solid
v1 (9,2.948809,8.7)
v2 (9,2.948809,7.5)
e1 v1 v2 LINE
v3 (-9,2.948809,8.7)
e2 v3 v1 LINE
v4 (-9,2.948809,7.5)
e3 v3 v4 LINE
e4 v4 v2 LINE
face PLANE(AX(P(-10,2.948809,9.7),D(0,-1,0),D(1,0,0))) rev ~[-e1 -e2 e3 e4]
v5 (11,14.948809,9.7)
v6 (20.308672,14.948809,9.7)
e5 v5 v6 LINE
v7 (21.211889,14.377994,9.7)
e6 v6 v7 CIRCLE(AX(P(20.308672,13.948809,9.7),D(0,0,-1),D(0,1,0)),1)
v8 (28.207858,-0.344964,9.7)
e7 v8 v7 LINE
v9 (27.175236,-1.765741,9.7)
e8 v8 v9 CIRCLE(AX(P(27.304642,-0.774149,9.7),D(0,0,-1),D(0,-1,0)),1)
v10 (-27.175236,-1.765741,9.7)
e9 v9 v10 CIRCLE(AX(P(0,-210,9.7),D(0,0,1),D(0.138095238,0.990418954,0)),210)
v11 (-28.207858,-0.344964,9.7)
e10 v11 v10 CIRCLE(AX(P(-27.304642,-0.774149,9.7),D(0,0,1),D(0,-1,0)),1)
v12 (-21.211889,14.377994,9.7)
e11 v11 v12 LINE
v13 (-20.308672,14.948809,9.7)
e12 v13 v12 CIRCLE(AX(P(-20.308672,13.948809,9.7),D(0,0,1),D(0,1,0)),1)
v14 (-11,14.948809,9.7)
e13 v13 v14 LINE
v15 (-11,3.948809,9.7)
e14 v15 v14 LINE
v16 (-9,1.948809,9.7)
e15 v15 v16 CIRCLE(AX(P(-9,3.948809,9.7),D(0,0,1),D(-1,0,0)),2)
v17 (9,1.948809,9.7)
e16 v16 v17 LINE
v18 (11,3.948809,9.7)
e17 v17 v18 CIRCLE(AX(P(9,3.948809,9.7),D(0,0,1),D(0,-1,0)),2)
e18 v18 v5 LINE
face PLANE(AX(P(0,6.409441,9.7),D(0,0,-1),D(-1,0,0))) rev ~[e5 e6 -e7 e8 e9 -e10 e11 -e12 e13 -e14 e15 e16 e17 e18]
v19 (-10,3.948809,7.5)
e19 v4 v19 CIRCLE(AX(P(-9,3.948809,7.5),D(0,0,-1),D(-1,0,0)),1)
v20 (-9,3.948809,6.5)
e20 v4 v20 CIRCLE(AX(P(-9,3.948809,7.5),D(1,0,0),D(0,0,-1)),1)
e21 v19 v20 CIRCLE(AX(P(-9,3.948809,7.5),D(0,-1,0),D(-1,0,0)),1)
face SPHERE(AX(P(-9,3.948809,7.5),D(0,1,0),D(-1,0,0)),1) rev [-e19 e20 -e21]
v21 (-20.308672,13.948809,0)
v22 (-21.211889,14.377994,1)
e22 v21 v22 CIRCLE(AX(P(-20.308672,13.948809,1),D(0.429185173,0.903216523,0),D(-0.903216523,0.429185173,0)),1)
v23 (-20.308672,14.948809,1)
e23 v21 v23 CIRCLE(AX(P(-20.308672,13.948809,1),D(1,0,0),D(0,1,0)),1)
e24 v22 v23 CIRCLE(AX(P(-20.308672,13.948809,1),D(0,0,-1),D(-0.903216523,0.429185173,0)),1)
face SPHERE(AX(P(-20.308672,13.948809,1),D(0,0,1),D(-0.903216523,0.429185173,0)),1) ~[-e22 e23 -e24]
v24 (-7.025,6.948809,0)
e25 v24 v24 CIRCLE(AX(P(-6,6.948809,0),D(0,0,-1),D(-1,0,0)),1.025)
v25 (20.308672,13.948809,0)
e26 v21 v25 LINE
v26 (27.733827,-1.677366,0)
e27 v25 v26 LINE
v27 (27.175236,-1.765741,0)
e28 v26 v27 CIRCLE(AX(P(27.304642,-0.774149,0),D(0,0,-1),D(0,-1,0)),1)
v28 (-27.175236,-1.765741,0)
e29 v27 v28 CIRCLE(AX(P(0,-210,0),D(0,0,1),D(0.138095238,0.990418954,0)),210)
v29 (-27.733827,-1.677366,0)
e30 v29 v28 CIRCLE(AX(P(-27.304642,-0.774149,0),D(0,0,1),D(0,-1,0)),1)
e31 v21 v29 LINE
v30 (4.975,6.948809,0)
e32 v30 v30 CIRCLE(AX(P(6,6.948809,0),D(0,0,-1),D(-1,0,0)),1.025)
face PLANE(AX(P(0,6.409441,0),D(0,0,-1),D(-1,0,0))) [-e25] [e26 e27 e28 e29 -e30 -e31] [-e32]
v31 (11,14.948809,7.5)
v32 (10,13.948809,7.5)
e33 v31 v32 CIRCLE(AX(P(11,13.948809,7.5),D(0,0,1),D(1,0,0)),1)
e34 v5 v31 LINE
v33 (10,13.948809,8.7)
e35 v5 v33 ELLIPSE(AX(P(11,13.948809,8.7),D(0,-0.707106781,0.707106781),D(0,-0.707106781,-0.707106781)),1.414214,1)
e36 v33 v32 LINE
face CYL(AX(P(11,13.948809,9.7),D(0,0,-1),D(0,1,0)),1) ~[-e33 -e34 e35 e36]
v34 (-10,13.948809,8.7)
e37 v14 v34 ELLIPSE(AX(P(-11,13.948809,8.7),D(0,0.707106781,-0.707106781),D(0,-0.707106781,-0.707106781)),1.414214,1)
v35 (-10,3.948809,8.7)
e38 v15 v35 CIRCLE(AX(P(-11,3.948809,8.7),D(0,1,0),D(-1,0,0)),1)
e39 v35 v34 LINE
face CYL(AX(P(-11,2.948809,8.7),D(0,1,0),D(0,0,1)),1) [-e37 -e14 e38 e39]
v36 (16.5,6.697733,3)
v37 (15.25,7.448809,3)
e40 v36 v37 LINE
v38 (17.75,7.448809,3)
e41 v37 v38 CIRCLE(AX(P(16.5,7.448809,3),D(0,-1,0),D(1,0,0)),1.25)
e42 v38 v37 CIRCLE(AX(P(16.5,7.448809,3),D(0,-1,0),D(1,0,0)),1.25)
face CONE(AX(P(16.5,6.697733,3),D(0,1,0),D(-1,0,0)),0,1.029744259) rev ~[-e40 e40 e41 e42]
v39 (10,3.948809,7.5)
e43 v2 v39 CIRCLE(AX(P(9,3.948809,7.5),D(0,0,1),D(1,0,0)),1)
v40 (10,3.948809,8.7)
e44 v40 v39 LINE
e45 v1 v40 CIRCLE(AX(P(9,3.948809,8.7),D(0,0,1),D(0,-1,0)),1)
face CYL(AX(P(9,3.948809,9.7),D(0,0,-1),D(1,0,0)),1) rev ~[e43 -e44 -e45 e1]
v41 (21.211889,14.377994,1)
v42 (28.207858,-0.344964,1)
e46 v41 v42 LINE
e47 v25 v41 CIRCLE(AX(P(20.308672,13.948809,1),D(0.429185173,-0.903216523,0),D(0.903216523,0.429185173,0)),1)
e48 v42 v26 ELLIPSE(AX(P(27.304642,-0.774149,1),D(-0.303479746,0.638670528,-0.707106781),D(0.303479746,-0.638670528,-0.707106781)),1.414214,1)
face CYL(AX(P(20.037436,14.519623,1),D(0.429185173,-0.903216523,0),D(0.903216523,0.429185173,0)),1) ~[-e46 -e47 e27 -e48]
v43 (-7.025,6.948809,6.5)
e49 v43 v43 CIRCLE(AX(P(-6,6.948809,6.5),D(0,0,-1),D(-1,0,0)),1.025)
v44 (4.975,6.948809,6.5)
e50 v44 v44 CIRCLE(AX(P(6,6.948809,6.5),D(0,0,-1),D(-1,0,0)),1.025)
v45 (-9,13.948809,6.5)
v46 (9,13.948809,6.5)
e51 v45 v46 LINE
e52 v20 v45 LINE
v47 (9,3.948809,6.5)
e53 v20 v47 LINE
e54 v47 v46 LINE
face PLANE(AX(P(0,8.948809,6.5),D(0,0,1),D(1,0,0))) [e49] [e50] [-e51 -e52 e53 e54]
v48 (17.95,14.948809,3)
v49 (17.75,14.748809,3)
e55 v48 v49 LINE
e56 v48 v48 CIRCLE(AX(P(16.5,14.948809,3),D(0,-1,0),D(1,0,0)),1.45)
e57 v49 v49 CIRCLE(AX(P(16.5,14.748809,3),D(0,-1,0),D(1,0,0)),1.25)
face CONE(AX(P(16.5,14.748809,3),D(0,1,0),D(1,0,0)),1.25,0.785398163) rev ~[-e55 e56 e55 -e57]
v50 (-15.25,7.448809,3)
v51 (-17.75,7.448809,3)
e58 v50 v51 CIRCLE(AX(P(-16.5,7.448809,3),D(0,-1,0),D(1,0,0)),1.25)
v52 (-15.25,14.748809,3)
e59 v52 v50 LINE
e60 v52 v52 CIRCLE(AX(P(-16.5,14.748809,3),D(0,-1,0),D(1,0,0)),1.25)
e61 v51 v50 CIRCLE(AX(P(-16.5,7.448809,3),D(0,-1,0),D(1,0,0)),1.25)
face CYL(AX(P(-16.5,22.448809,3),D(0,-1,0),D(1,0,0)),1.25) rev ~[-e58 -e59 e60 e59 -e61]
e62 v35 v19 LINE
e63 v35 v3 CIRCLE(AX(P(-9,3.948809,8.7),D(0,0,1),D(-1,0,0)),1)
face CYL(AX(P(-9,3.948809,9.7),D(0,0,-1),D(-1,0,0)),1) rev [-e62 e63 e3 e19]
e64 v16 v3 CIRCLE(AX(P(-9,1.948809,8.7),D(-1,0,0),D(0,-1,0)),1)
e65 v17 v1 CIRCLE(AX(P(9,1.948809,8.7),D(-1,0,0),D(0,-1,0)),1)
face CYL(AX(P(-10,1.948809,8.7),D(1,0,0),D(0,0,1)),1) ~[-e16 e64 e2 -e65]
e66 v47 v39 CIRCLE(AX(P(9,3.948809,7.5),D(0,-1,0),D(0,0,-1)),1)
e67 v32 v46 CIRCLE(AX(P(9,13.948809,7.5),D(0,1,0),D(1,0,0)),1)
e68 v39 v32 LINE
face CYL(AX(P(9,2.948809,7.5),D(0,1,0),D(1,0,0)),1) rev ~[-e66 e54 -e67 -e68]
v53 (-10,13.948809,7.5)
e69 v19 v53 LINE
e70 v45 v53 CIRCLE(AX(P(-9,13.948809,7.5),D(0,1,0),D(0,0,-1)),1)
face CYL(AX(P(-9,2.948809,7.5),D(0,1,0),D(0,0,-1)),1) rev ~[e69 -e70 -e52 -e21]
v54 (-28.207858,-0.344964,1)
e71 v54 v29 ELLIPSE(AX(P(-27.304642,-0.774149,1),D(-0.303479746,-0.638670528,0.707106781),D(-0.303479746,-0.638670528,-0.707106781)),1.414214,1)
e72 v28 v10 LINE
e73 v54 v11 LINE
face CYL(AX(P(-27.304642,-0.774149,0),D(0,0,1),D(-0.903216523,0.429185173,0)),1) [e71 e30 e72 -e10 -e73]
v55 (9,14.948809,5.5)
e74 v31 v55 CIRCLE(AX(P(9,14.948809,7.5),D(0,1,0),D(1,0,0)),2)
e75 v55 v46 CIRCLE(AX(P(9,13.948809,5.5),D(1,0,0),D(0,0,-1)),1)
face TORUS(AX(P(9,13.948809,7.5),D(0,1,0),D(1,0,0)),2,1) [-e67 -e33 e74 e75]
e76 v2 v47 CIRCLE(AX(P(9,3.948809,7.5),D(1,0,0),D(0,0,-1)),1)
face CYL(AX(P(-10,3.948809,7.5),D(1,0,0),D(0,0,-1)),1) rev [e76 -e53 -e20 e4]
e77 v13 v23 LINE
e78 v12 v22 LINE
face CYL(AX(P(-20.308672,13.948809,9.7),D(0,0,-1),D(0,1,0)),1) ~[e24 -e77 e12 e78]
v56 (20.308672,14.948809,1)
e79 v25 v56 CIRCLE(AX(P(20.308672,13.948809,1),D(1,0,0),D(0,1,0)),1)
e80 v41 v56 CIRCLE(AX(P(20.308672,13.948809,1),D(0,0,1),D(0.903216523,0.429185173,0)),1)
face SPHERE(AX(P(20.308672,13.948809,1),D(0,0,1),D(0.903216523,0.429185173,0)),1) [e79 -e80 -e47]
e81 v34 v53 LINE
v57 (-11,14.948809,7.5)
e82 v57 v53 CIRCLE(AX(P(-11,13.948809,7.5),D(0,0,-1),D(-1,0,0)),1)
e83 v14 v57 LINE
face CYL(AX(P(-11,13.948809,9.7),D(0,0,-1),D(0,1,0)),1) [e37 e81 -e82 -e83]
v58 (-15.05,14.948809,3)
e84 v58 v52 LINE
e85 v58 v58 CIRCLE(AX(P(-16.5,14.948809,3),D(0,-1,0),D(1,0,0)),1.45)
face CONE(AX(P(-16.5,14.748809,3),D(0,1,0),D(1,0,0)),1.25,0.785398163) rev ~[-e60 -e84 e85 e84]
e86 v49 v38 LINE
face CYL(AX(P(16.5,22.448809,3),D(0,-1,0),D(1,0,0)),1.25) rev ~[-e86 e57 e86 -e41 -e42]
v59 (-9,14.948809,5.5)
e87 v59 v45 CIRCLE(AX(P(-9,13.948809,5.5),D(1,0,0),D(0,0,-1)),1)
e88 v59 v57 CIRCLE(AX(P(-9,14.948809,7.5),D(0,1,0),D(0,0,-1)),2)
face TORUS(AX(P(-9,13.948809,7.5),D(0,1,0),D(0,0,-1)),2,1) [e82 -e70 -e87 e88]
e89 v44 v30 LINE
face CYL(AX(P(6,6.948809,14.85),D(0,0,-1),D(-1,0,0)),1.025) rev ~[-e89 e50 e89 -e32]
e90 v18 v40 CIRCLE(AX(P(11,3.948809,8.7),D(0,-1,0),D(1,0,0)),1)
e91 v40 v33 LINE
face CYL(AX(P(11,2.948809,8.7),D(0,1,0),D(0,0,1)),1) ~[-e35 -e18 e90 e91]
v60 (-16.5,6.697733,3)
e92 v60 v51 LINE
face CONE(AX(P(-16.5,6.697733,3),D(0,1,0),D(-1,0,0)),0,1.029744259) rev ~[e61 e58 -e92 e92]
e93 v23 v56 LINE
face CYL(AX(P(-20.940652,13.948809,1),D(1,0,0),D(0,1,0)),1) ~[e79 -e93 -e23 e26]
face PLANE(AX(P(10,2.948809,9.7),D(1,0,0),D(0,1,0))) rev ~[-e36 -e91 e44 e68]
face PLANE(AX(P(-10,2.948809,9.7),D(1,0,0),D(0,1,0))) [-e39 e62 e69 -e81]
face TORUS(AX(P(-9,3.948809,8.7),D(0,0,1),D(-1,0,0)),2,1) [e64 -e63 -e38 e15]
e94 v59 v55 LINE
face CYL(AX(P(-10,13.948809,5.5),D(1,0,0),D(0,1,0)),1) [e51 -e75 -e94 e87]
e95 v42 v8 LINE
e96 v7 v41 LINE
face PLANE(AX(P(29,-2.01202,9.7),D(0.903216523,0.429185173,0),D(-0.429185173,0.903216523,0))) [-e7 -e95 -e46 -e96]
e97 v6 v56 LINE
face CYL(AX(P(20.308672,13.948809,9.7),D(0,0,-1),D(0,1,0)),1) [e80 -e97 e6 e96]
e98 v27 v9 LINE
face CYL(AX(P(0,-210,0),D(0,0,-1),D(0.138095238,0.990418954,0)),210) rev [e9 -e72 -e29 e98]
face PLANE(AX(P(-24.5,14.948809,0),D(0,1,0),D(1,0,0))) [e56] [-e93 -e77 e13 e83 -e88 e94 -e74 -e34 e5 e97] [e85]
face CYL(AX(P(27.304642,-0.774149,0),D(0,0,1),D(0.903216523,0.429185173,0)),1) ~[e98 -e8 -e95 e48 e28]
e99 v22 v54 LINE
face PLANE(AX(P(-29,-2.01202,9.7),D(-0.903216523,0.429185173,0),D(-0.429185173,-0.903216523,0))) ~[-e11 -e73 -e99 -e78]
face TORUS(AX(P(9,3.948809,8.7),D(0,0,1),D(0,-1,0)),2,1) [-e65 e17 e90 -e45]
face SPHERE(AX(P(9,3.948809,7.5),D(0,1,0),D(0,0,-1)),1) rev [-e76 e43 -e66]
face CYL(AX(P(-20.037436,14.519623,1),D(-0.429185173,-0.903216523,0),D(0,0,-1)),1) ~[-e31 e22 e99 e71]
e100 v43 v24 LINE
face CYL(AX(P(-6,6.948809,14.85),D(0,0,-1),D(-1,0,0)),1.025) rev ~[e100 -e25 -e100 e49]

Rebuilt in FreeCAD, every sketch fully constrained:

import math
import FreeCAD as App
import Part
import Sketcher

V = App.Vector
Q = App.Units.Quantity


def edges_at(feature, points):
    """Names of the edges that pass closest to the given points."""
    edges = feature.Shape.Edges
    near = lambda p: min(range(len(edges)), key=lambda i: edges[i].distToShape(Part.Vertex(*p))[0])
    return sorted({f"Edge{near(p) + 1}" for p in points})


def add_polygon(sketch, points):
    """Adds a closed chain of lines whose ends are joined by coincident constraints."""
    first, n = sketch.GeometryCount, len(points)
    for a, b in zip(points, points[1:] + points[:1]):
        sketch.addGeometry(Part.LineSegment(App.Vector(*a, 0), App.Vector(*b, 0)), False)
    for i in range(n):
        sketch.addConstraint(Sketcher.Constraint("Coincident", first + i, 2, first + (i + 1) % n, 1))

doc = App.newDocument("Part")
body = doc.addObject("PartDesign::Body", "Body")

sketch1 = body.newObject("Sketcher::SketchObject", "Sketch")
sketch1.AttachmentSupport = (doc.getObject("XY_Plane"), [""])
sketch1.MapMode = "FlatFace"
sketch1.addGeometry([
    Part.LineSegment(V(29, -2, 0), V(24.5, 14.9, 0)),
    Part.LineSegment(V(24.5, 14.9, 0), V(-24.5, 14.9, 0)),
    Part.LineSegment(V(-24.5, 14.9, 0), V(-29, -2, 0)),
    Part.ArcOfCircle(Part.Circle(V(0, -210, 0), V(0, 0, 1), 210), math.radians(82.06), math.radians(97.94)),
    Part.Circle(V(6, 6.9, 0), V(0, 0, 1), 0.5),
    Part.Circle(V(-6, 6.9, 0), V(0, 0, 1), 0.5),
], False)
sketch1.addConstraint([
    Sketcher.Constraint("Coincident", 0, 2, 1, 1),
    Sketcher.Constraint("Coincident", 1, 2, 2, 1),
    Sketcher.Constraint("Coincident", 2, 2, 3, 2),
    Sketcher.Constraint("Coincident", 3, 1, 0, 1),
    Sketcher.Constraint("Horizontal", 1),
    Sketcher.Constraint("Equal", 4, 5),
    Sketcher.Constraint("Symmetric", 4, 3, 5, 3, -2),
    Sketcher.Constraint("Symmetric", 2, 2, 3, 1, -2),
    Sketcher.Constraint("Equal", 0, 2),
    Sketcher.Constraint("Diameter", 4, Q("1 mm")),
    Sketcher.Constraint("Radius", 3, Q("210 mm")),
    Sketcher.Constraint("DistanceX", 1, 2, 1, 1, Q("49 mm")),
    Sketcher.Constraint("DistanceY", 3, 3, -1, 1, Q("210 mm")),
    Sketcher.Constraint("DistanceX", -1, 1, 4, 3, Q("6 mm")),
    Sketcher.Constraint("DistanceX", 2, 2, -1, 1, Q("29 mm")),
    Sketcher.Constraint("DistanceY", 4, 3, 0, 2, Q("8 mm")),
    Sketcher.Constraint("Distance", 0, Q("17.547641 mm")),
])
pad1 = body.newObject("PartDesign::Pad", "Pad")
pad1.Profile = sketch1
pad1.Length = 9.7

sketch2 = body.newObject("Sketcher::SketchObject", "Sketch001")
sketch2.AttachmentSupport = (doc.getObject("XZ_Plane"), [""])
sketch2.MapMode = "FlatFace"
sketch2.AttachmentOffset = App.Placement(V(0, 0, -14.948809), App.Rotation())
sketch2.addGeometry([
    Part.Circle(V(16.5, 3, 0), V(0, 0, 1), 1.2),
    Part.Circle(V(-16.5, 3, 0), V(0, 0, 1), 1.2),
], False)
sketch2.addConstraint([
    Sketcher.Constraint("Equal", 0, 1),
    Sketcher.Constraint("Symmetric", 0, 3, 1, 3, -2),
    Sketcher.Constraint("Diameter", 0, Q("2.5 mm")),
    Sketcher.Constraint("DistanceY", -1, 1, 0, 3, Q("3 mm")),
    Sketcher.Constraint("DistanceX", 1, 3, 0, 3, Q("33 mm")),
])
doc.recompute()
hole = body.newObject("PartDesign::Hole", "Hole")
hole.Profile = sketch2
hole.ThreadType = "None"
hole.Diameter = 2.5
hole.DepthType = "Dimension"
hole.Depth = 7.5
hole.DrillPoint = "Angled"
hole.DrillPointAngle = 118
hole.Reversed = True

sketch3 = body.newObject("Sketcher::SketchObject", "Sketch002")
sketch3.AttachmentSupport = (doc.getObject("XY_Plane"), [""])
sketch3.MapMode = "FlatFace"
sketch3.AttachmentOffset = App.Placement(V(0, 0, 9.7), App.Rotation())
add_polygon(sketch3, [(20.9, 15), (29, -2), (24.5, 14.9)])
sketch3.addConstraint([
    Sketcher.Constraint("DistanceX", -1, 1, 0, 2, Q("29 mm")),
    Sketcher.Constraint("DistanceX", -1, 1, 1, 2, Q("24.5 mm")),
    Sketcher.Constraint("Distance", 0, Q("18.838401 mm")),
    Sketcher.Constraint("Distance", 1, Q("17.547641 mm")),
    Sketcher.Constraint("DistanceY", 0, 2, -1, 1, Q("2.01202 mm")),
    Sketcher.Constraint("Distance", 2, Q("3.585574 mm")),
])
pocket1 = body.newObject("PartDesign::Pocket", "Pocket")
pocket1.Profile = sketch3
pocket1.Type = "ThroughAll"
doc.recompute()

mirrored = body.newObject("PartDesign::Mirrored", "Mirrored")
mirrored.Originals = [pocket1]
mirrored.MirrorPlane = (doc.getObject("YZ_Plane"), [""])
body.Tip = mirrored
doc.recompute()

chamfer = body.newObject("PartDesign::Chamfer", "Chamfer")
chamfer.Base = (mirrored, edges_at(mirrored, [
    (-6.5, 6.949, 0),
    (-6.5, 6.949, 9.7),
    (5.5, 6.949, 0),
    (5.5, 6.949, 9.7),
]))
chamfer.Size = 0.5
doc.recompute()

chamfer2 = body.newObject("PartDesign::Chamfer", "Chamfer001")
chamfer2.Base = (chamfer, edges_at(chamfer, [(-17.75, 14.949, 3), (15.25, 14.949, 3)]))
chamfer2.Size = 0.2

sketch4 = body.newObject("Sketcher::SketchObject", "Sketch003")
sketch4.AttachmentSupport = (doc.getObject("XY_Plane"), [""])
sketch4.MapMode = "FlatFace"
sketch4.AttachmentOffset = App.Placement(V(0, 0, 9.7), App.Rotation())
add_polygon(sketch4, [(-10, 15), (-10, 3), (10, 3), (10, 15)])
sketch4.addConstraint([
    Sketcher.Constraint("Vertical", 0),
    Sketcher.Constraint("Horizontal", 1),
    Sketcher.Constraint("Vertical", 2),
    Sketcher.Constraint("Horizontal", 3),
    Sketcher.Constraint("DistanceX", 1, 1, 1, 2, Q("20 mm")),
    Sketcher.Constraint("DistanceY", 0, 2, 0, 1, Q("12 mm")),
    Sketcher.Constraint("DistanceX", 0, 2, -1, 1, Q("10 mm")),
    Sketcher.Constraint("DistanceY", -1, 1, 0, 2, Q("2.948809 mm")),
])
pocket2 = body.newObject("PartDesign::Pocket", "Pocket001")
pocket2.Profile = sketch4
pocket2.Length = 3.2
doc.recompute()

fillet = body.newObject("PartDesign::Fillet", "Fillet")
fillet.Base = (pocket2, edges_at(pocket2, [
    (-10, 8.949, 6.5),
    (-10, 2.949, 8.1),
    (0, 14.949, 6.5),
    (-10, 14.949, 8.1),
    (10, 8.949, 6.5),
    (10, 14.949, 8.1),
    (0, 2.949, 6.5),
    (10, 2.949, 8.1),
    (-10, 8.949, 9.7),
    (0, 2.949, 9.7),
    (10, 8.949, 9.7),
]))
fillet.Radius = 1
doc.recompute()

fillet2 = body.newObject("PartDesign::Fillet", "Fillet001")
fillet2.Base = (fillet, edges_at(fillet, [
    (29, -2.012, 4.85),
    (-29, -2.012, 4.85),
    (0, 14.949, 0),
    (20.941, 14.949, 4.85),
    (24.97, 6.468, 0),
    (-20.941, 14.949, 4.85),
    (-24.97, 6.468, 0),
]))
fillet2.Radius = 1

sketch5 = body.newObject("Sketcher::SketchObject", "Sketch004")
sketch5.AttachmentSupport = (doc.getObject("XY_Plane"), [""])
sketch5.MapMode = "FlatFace"
sketch5.AttachmentOffset = App.Placement(V(0, 0, 6.5), App.Rotation())
sketch5.addGeometry([
    Part.Circle(V(6, 6.9, 0), V(0, 0, 1), 1),
    Part.Circle(V(-6, 6.9, 0), V(0, 0, 1), 1),
], False)
sketch5.addConstraint([
    Sketcher.Constraint("Equal", 0, 1),
    Sketcher.Constraint("Symmetric", 0, 3, 1, 3, -2),
    Sketcher.Constraint("Diameter", 0, Q("2.05 mm")),
    Sketcher.Constraint("DistanceX", -1, 1, 0, 3, Q("6 mm")),
    Sketcher.Constraint("DistanceY", -1, 1, 0, 3, Q("6.948809 mm")),
])
doc.recompute()
hole2 = body.newObject("PartDesign::Hole", "Hole001")
hole2.Profile = sketch5
hole2.ThreadType = "None"
hole2.Diameter = 2.05
hole2.DepthType = "Dimension"
hole2.Depth = 8.35
hole2.DrillPoint = "Angled"
hole2.DrillPointAngle = 118

doc.recompute()
